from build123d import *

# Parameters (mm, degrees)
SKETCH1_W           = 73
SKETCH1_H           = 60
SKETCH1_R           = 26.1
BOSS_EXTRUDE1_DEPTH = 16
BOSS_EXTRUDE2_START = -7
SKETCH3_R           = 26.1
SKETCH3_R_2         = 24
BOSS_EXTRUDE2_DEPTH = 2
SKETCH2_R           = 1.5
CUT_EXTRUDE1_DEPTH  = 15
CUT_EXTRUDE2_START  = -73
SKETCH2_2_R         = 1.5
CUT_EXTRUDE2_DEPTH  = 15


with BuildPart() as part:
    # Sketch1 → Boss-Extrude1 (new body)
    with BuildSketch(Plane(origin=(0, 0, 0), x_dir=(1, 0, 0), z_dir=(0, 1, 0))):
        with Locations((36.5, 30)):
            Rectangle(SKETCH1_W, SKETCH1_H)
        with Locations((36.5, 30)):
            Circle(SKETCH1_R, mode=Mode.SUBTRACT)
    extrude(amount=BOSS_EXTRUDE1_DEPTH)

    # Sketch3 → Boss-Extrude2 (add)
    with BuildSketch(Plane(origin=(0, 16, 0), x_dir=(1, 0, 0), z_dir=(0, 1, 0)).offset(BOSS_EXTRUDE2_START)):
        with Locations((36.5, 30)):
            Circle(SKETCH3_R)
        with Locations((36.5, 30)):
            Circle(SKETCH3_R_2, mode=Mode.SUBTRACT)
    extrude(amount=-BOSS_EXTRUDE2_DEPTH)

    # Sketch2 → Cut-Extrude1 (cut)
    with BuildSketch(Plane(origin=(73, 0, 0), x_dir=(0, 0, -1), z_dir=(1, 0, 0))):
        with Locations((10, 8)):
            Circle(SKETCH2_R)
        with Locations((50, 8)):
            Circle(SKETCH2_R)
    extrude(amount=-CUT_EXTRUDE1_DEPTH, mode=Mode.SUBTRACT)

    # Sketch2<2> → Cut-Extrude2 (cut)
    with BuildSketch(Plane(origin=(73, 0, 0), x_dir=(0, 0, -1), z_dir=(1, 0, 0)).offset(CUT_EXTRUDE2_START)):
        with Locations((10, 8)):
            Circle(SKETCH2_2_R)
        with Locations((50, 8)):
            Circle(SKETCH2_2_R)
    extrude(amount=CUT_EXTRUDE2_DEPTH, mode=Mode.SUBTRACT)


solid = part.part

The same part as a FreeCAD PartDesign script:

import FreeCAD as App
import Part
import Sketcher
Q = App.Units.Quantity

doc = App.newDocument("Part")
body = doc.addObject("PartDesign::Body", "Body")

# Sketch on XZ plane
sketch1 = body.newObject("Sketcher::SketchObject", "Sketch")
sketch1.AttachmentSupport = (doc.getObject("XZ_Plane"), [""])
sketch1.MapMode = "FlatFace"
sketch1.addGeometry(Part.LineSegment(App.Vector(0, -60, 0), App.Vector(0, 0, 0)), False)
sketch1.addGeometry(Part.LineSegment(App.Vector(0, 0, 0), App.Vector(73, 0, 0)), False)
sketch1.addGeometry(Part.LineSegment(App.Vector(73, 0, 0), App.Vector(73, -60, 0)), False)
sketch1.addGeometry(Part.LineSegment(App.Vector(73, -60, 0), App.Vector(0, -60, 0)), False)
sketch1.addGeometry(Part.Circle(App.Vector(36.5, -30, 0), App.Vector(0, 0, 1), 26.1), False)
sketch1.addConstraint(Sketcher.Constraint("Coincident", 0, 2, 1, 1))
sketch1.addConstraint(Sketcher.Constraint("Coincident", 1, 2, 2, 1))
sketch1.addConstraint(Sketcher.Constraint("Coincident", 2, 2, 3, 1))
sketch1.addConstraint(Sketcher.Constraint("Coincident", 3, 2, 0, 1))
sketch1.addConstraint(Sketcher.Constraint("Vertical", 0))
sketch1.addConstraint(Sketcher.Constraint("Horizontal", 1))
sketch1.addConstraint(Sketcher.Constraint("Vertical", 2))
sketch1.addConstraint(Sketcher.Constraint("Horizontal", 3))
sketch1.addConstraint(Sketcher.Constraint("Coincident", 0, 2, -1, 1))
sketch1.addConstraint(Sketcher.Constraint("Diameter", 4, Q("52.2 mm")))
sketch1.addConstraint(Sketcher.Constraint("DistanceX", 1, 1, 1, 2, Q("73 mm")))
sketch1.addConstraint(Sketcher.Constraint("DistanceY", 0, 1, 0, 2, Q("60 mm")))
sketch1.addConstraint(Sketcher.Constraint("DistanceY", 4, 3, -1, 1, Q("30 mm")))
sketch1.addConstraint(Sketcher.Constraint("DistanceX", -1, 1, 4, 3, Q("36.5 mm")))
pad1 = body.newObject("PartDesign::Pad", "Pad")
pad1.Profile = sketch1
pad1.Length = 16
pad1.Reversed = True

# Sketch on XZ plane
sketch2 = body.newObject("Sketcher::SketchObject", "Sketch001")
sketch2.AttachmentSupport = (doc.getObject("XZ_Plane"), [""])
sketch2.MapMode = "FlatFace"
sketch2.AttachmentOffset = App.Placement(App.Vector(0, 0, -9), App.Rotation())
sketch2.addGeometry(Part.Circle(App.Vector(36.5, -30, 0), App.Vector(0, 0, 1), 26.1), False)
sketch2.addGeometry(Part.Circle(App.Vector(36.5, -30, 0), App.Vector(0, 0, 1), 24), False)
sketch2.addConstraint(Sketcher.Constraint("Coincident", 1, 3, 0, 3))
sketch2.addConstraint(Sketcher.Constraint("Diameter", 1, Q("48 mm")))
sketch2.addConstraint(Sketcher.Constraint("Diameter", 0, Q("52.2 mm")))
sketch2.addConstraint(Sketcher.Constraint("DistanceY", 0, 3, -1, 1, Q("30 mm")))
sketch2.addConstraint(Sketcher.Constraint("DistanceX", -1, 1, 0, 3, Q("36.5 mm")))
pad2 = body.newObject("PartDesign::Pad", "Pad001")
pad2.Profile = sketch2
pad2.Length = 2

# Sketch on YZ plane
sketch3 = body.newObject("Sketcher::SketchObject", "Sketch002")
sketch3.AttachmentSupport = (doc.getObject("YZ_Plane"), [""])
sketch3.MapMode = "FlatFace"
sketch3.AttachmentOffset = App.Placement(App.Vector(0, 0, 73), App.Rotation())
sketch3.addGeometry(Part.Circle(App.Vector(8, -10, 0), App.Vector(0, 0, 1), 1.5), False)
sketch3.addGeometry(Part.Circle(App.Vector(8, -50, 0), App.Vector(0, 0, 1), 1.5), False)
sketch3.addConstraint(Sketcher.Constraint("Equal", 0, 1))
sketch3.addConstraint(Sketcher.Constraint("Vertical", 0, 3, 1, 3))
sketch3.addConstraint(Sketcher.Constraint("Diameter", 0, Q("3 mm")))
sketch3.addConstraint(Sketcher.Constraint("DistanceX", -1, 1, 0, 3, Q("8 mm")))
sketch3.addConstraint(Sketcher.Constraint("DistanceY", 0, 3, -1, 1, Q("10 mm")))
sketch3.addConstraint(Sketcher.Constraint("DistanceY", 1, 3, -1, 1, Q("50 mm")))
pocket1 = body.newObject("PartDesign::Pocket", "Pocket")
pocket1.Profile = sketch3
pocket1.Length = 15

# Sketch on YZ plane
sketch4 = body.newObject("Sketcher::SketchObject", "Sketch003")
sketch4.AttachmentSupport = (doc.getObject("YZ_Plane"), [""])
sketch4.MapMode = "FlatFace"
sketch4.addGeometry(Part.Circle(App.Vector(8, -10, 0), App.Vector(0, 0, 1), 1.5), False)
sketch4.addGeometry(Part.Circle(App.Vector(8, -50, 0), App.Vector(0, 0, 1), 1.5), False)
sketch4.addConstraint(Sketcher.Constraint("Equal", 0, 1))
sketch4.addConstraint(Sketcher.Constraint("Vertical", 0, 3, 1, 3))
sketch4.addConstraint(Sketcher.Constraint("Diameter", 0, Q("3 mm")))
sketch4.addConstraint(Sketcher.Constraint("DistanceX", -1, 1, 0, 3, Q("8 mm")))
sketch4.addConstraint(Sketcher.Constraint("DistanceY", 0, 3, -1, 1, Q("10 mm")))
sketch4.addConstraint(Sketcher.Constraint("DistanceY", 1, 3, -1, 1, Q("50 mm")))
pocket2 = body.newObject("PartDesign::Pocket", "Pocket001")
pocket2.Profile = sketch4
pocket2.Length = 15
pocket2.Reversed = True

doc.recompute()
